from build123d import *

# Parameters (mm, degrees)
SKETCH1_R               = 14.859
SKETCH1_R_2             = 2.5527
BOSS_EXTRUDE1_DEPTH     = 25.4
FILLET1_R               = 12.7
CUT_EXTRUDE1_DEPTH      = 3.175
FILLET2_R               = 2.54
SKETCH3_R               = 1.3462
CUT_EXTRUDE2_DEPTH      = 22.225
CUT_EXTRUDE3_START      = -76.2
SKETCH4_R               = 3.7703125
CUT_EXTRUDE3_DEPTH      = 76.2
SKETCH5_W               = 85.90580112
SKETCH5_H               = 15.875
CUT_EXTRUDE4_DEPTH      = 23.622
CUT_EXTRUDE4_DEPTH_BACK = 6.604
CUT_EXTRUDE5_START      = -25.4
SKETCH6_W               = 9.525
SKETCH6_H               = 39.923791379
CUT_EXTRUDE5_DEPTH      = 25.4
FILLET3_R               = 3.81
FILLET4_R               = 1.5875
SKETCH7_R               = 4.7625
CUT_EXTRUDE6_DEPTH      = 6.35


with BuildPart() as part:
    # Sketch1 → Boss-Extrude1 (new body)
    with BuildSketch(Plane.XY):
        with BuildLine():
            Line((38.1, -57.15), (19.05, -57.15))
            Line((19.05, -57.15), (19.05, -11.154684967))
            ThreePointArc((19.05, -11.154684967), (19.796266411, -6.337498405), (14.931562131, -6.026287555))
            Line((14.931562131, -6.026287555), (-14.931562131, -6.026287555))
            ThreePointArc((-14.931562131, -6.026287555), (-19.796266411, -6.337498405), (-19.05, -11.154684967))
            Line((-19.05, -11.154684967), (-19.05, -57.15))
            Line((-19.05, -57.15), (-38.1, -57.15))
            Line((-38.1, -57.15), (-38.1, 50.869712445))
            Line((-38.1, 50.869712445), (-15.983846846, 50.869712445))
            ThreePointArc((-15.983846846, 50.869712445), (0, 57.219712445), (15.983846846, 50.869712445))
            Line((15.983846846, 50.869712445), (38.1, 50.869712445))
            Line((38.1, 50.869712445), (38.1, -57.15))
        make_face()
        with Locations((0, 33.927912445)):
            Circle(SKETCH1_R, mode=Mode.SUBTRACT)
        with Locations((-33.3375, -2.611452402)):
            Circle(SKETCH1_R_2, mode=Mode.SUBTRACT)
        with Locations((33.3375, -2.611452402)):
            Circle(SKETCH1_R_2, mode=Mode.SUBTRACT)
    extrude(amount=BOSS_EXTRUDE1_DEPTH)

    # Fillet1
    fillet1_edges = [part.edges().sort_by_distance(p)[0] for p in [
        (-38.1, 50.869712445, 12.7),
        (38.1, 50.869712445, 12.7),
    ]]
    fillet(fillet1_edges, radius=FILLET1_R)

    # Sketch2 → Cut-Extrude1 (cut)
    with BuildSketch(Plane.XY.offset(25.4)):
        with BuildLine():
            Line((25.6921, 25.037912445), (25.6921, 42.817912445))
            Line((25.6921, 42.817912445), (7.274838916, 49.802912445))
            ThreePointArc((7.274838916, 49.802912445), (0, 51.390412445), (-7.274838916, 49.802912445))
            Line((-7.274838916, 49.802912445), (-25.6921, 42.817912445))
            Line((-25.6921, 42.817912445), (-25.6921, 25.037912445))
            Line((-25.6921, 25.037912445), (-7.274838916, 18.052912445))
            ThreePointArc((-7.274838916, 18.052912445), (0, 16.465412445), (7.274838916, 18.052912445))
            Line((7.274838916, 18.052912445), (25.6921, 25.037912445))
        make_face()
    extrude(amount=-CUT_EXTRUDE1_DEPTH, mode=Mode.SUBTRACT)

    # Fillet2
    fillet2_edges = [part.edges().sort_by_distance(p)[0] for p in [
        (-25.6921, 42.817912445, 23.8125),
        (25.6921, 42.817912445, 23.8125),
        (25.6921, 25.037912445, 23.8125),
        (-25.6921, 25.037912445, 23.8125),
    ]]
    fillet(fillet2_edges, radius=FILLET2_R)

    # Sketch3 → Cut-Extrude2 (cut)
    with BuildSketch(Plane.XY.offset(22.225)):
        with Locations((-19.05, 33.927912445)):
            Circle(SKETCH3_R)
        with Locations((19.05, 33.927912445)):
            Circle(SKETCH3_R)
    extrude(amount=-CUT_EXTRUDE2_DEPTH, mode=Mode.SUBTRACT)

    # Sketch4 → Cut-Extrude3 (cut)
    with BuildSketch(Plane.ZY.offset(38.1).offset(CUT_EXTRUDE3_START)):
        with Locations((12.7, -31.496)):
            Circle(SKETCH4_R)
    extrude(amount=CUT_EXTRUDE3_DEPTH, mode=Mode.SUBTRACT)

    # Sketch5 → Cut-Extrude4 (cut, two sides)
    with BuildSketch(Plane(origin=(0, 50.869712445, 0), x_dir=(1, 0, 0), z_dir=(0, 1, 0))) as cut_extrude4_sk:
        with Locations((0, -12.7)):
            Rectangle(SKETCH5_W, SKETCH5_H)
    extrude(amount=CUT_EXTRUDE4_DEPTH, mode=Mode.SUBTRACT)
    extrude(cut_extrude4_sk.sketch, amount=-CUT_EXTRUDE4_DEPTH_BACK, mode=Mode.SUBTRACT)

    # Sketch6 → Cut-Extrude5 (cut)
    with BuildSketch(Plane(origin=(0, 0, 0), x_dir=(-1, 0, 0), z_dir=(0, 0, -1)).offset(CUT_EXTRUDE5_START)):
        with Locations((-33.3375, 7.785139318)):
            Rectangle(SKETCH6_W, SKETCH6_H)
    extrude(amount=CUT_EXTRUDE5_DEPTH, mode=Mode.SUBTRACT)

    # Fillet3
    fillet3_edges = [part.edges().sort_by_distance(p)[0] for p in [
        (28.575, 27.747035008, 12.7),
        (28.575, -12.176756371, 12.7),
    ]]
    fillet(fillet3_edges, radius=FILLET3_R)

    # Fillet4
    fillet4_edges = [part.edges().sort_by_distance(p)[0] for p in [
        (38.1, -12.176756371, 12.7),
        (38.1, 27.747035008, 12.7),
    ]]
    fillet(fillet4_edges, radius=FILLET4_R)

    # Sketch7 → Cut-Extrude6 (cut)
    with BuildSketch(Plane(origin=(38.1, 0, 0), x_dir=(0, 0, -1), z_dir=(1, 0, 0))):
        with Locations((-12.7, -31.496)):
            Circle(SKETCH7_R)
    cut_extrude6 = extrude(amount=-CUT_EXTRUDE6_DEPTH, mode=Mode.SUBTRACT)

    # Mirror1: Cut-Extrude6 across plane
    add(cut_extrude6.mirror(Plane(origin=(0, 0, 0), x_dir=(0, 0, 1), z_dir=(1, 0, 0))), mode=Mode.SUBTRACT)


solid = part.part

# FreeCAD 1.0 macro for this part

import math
import FreeCAD as App
import Part
import Sketcher

V = App.Vector
Q = App.Units.Quantity


def edges_at(feature, points):
    """Names of the edges that pass closest to the given points."""
    edges = feature.Shape.Edges
    near = lambda p: min(range(len(edges)), key=lambda i: edges[i].distToShape(Part.Vertex(*p))[0])
    return sorted({f"Edge{near(p) + 1}" for p in points})

doc = App.newDocument("Part")
body = doc.addObject("PartDesign::Body", "Body")

# Sketch on XY plane
sketch1 = body.newObject("Sketcher::SketchObject", "Sketch")
sketch1.AttachmentSupport = (doc.getObject("XY_Plane"), [""])
sketch1.MapMode = "FlatFace"
sketch1.addGeometry(Part.LineSegment(V(19.05, -57.15, 0), V(38.1, -57.15, 0)), False)
sketch1.addGeometry(Part.LineSegment(V(38.1, -57.15, 0), V(38.1, 50.869712, 0)), False)
sketch1.addGeometry(Part.LineSegment(V(38.1, 50.869712, 0), V(15.983847, 50.869712, 0)), False)
sketch1.addGeometry(Part.ArcOfCircle(Part.Circle(V(0, 33.927912, 0), V(0, 0, 1), 23.2918), math.radians(46.666518), math.radians(133.333482)), False)
sketch1.addGeometry(Part.LineSegment(V(-15.983847, 50.869712, 0), V(-38.1, 50.869712, 0)), False)
sketch1.addGeometry(Part.LineSegment(V(-38.1, 50.869712, 0), V(-38.1, -57.15, 0)), False)
sketch1.addGeometry(Part.LineSegment(V(-38.1, -57.15, 0), V(-19.05, -57.15, 0)), False)
sketch1.addGeometry(Part.LineSegment(V(-19.05, -57.15, 0), V(-19.05, -11.154685, 0)), False)
sketch1.addGeometry(Part.ArcOfCircle(Part.Circle(V(-17.221692, -8.40505, 0), V(0, 0, 1), 3.302), math.radians(46.087554), math.radians(236.37897)), False)
sketch1.addGeometry(Part.LineSegment(V(-14.931562, -6.026288, 0), V(14.931562, -6.026288, 0)), False)
sketch1.addGeometry(Part.ArcOfCircle(Part.Circle(V(17.221692, -8.40505, 0), V(0, 0, 1), 3.302), math.radians(-56.37897), math.radians(133.912446)), False)
sketch1.addGeometry(Part.LineSegment(V(19.05, -11.154685, 0), V(19.05, -57.15, 0)), False)
sketch1.addGeometry(Part.Circle(V(33.3375, -2.611452, 0), V(0, 0, 1), 2.5527), False)
sketch1.addGeometry(Part.Circle(V(-33.3375, -2.611452, 0), V(0, 0, 1), 2.5527), False)
sketch1.addGeometry(Part.Circle(V(0, 33.927912, 0), V(0, 0, 1), 14.859), False)
sketch1.addConstraint(Sketcher.Constraint("Coincident", 0, 2, 1, 1))
sketch1.addConstraint(Sketcher.Constraint("Coincident", 1, 2, 2, 1))
sketch1.addConstraint(Sketcher.Constraint("Coincident", 2, 2, 3, 1))
sketch1.addConstraint(Sketcher.Constraint("Coincident", 3, 2, 4, 1))
sketch1.addConstraint(Sketcher.Constraint("Coincident", 4, 2, 5, 1))
sketch1.addConstraint(Sketcher.Constraint("Coincident", 5, 2, 6, 1))
sketch1.addConstraint(Sketcher.Constraint("Coincident", 6, 2, 7, 1))
sketch1.addConstraint(Sketcher.Constraint("Coincident", 7, 2, 8, 2))
sketch1.addConstraint(Sketcher.Constraint("Coincident", 8, 1, 9, 1))
sketch1.addConstraint(Sketcher.Constraint("Coincident", 9, 2, 10, 2))
sketch1.addConstraint(Sketcher.Constraint("Coincident", 10, 1, 11, 1))
sketch1.addConstraint(Sketcher.Constraint("Coincident", 11, 2, 0, 1))
sketch1.addConstraint(Sketcher.Constraint("Horizontal", 0))
sketch1.addConstraint(Sketcher.Constraint("Vertical", 1))
sketch1.addConstraint(Sketcher.Constraint("Horizontal", 2))
sketch1.addConstraint(Sketcher.Constraint("Horizontal", 4))
sketch1.addConstraint(Sketcher.Constraint("Vertical", 5))
sketch1.addConstraint(Sketcher.Constraint("Horizontal", 6))
sketch1.addConstraint(Sketcher.Constraint("Vertical", 7))
sketch1.addConstraint(Sketcher.Constraint("Horizontal", 9))
sketch1.addConstraint(Sketcher.Constraint("Vertical", 11))
sketch1.addConstraint(Sketcher.Constraint("Coincident", 14, 3, 3, 3))
sketch1.addConstraint(Sketcher.Constraint("Equal", 8, 10))
sketch1.addConstraint(Sketcher.Constraint("Equal", 12, 13))
sketch1.addConstraint(Sketcher.Constraint("Symmetric", 8, 3, 10, 3, -2))
sketch1.addConstraint(Sketcher.Constraint("Symmetric", 12, 3, 13, 3, -2))
sketch1.addConstraint(Sketcher.Constraint("Symmetric", 2, 2, 3, 2, -2))
sketch1.addConstraint(Sketcher.Constraint("Symmetric", 0, 2, 5, 2, -2))
sketch1.addConstraint(Sketcher.Constraint("Horizontal", 7, 2, 10, 1))
sketch1.addConstraint(Sketcher.Constraint("Diameter", 14, Q("1.17 in")))
sketch1.addConstraint(Sketcher.Constraint("Radius", 8, Q("0.13 in")))
sketch1.addConstraint(Sketcher.Constraint("Diameter", 12, Q("0.201 in")))
sketch1.addConstraint(Sketcher.Constraint("Radius", 3, Q("0.917 in")))
sketch1.addConstraint(Sketcher.Constraint("DistanceX", 5, 2, 0, 2, Q("3 in")))
sketch1.addConstraint(Sketcher.Constraint("DistanceX", 0, 1, 0, 2, Q("0.75 in")))
sketch1.addConstraint(Sketcher.Constraint("DistanceY", 0, 2, -1, 1, Q("2.25 in")))
sketch1.addConstraint(Sketcher.Constraint("DistanceX", -1, 1, 12, 3, Q("1.3125 in")))
sketch1.addConstraint(Sketcher.Constraint("DistanceY", 3, 3, 1, 2, Q("0.667 in")))
sketch1.addConstraint(Sketcher.Constraint("DistanceY", 8, 1, 3, 3, Q("1.573 in")))
sketch1.addConstraint(Sketcher.Constraint("DistanceX", 9, 1, 9, 2, Q("29.863124 mm")))
sketch1.addConstraint(Sketcher.Constraint("DistanceY", 1, 1, 1, 2, Q("108.019712 mm")))
sketch1.addConstraint(Sketcher.Constraint("DistanceY", 7, 1, 7, 2, Q("45.995315 mm")))
sketch1.addConstraint(Sketcher.Constraint("DistanceY", 12, 3, -1, 1, Q("2.611452 mm")))
pad1 = body.newObject("PartDesign::Pad", "Pad")
pad1.Profile = sketch1
pad1.Length = Q("1 in")
doc.recompute()

fillet = body.newObject("PartDesign::Fillet", "Fillet")
fillet.Base = (pad1, edges_at(pad1, [(-38.1, 50.87, 12.7), (38.1, 50.87, 12.7)]))
fillet.Radius = Q("0.5 in")

# Sketch on XY plane
sketch2 = body.newObject("Sketcher::SketchObject", "Sketch001")
sketch2.AttachmentSupport = (doc.getObject("XY_Plane"), [""])
sketch2.MapMode = "FlatFace"
sketch2.AttachmentOffset = App.Placement(V(0, 0, 1 * 25.4), App.Rotation())
sketch2.addGeometry(Part.LineSegment(V(25.6921, 25.037912, 0), V(25.6921, 42.817912, 0)), False)
sketch2.addGeometry(Part.LineSegment(V(25.6921, 42.817912, 0), V(7.274839, 49.802912, 0)), False)
sketch2.addGeometry(Part.ArcOfCircle(Part.Circle(V(0, 33.927912, 0), V(0, 0, 1), 17.4625), math.radians(65.380023), math.radians(114.619977)), False)
sketch2.addGeometry(Part.LineSegment(V(-7.274839, 49.802912, 0), V(-25.6921, 42.817912, 0)), False)
sketch2.addGeometry(Part.LineSegment(V(-25.6921, 42.817912, 0), V(-25.6921, 25.037912, 0)), False)
sketch2.addGeometry(Part.LineSegment(V(-25.6921, 25.037912, 0), V(-7.274839, 18.052912, 0)), False)
sketch2.addGeometry(Part.ArcOfCircle(Part.Circle(V(0, 33.927912, 0), V(0, 0, 1), 17.4625), math.radians(-114.619977), math.radians(-65.380023)), False)
sketch2.addGeometry(Part.LineSegment(V(7.274839, 18.052912, 0), V(25.6921, 25.037912, 0)), False)
sketch2.addConstraint(Sketcher.Constraint("Coincident", 0, 2, 1, 1))
sketch2.addConstraint(Sketcher.Constraint("Coincident", 1, 2, 2, 1))
sketch2.addConstraint(Sketcher.Constraint("Coincident", 2, 2, 3, 1))
sketch2.addConstraint(Sketcher.Constraint("Coincident", 3, 2, 4, 1))
sketch2.addConstraint(Sketcher.Constraint("Coincident", 4, 2, 5, 1))
sketch2.addConstraint(Sketcher.Constraint("Coincident", 5, 2, 6, 1))
sketch2.addConstraint(Sketcher.Constraint("Coincident", 6, 2, 7, 1))
sketch2.addConstraint(Sketcher.Constraint("Coincident", 7, 2, 0, 1))
sketch2.addConstraint(Sketcher.Constraint("Vertical", 0))
sketch2.addConstraint(Sketcher.Constraint("Vertical", 4))
sketch2.addConstraint(Sketcher.Constraint("Coincident", 6, 3, 2, 3))
sketch2.addConstraint(Sketcher.Constraint("Equal", 2, 6))
sketch2.addConstraint(Sketcher.Constraint("Symmetric", 1, 2, 2, 2, -2))
sketch2.addConstraint(Sketcher.Constraint("Symmetric", 0, 2, 3, 2, -2))
sketch2.addConstraint(Sketcher.Constraint("Parallel", 1, 5))
sketch2.addConstraint(Sketcher.Constraint("Parallel", 3, 7))
sketch2.addConstraint(Sketcher.Constraint("Horizontal", 5, 2, 6, 2))
sketch2.addConstraint(Sketcher.Constraint("Vertical", 2, 2, 5, 2))
sketch2.addConstraint(Sketcher.Constraint("DistanceY", 0, 1, 0, 2, Q("0.7 in")))
sketch2.addConstraint(Sketcher.Constraint("Radius", 2, Q("0.6875 in")))
sketch2.addConstraint(Sketcher.Constraint("DistanceY", 5, 2, 2, 2, Q("1.25 in")))
sketch2.addConstraint(Sketcher.Constraint("DistanceX", 3, 2, 0, 2, Q("2.023 in")))
sketch2.addConstraint(Sketcher.Constraint("DistanceY", -1, 1, 2, 3, Q("33.927912 mm")))
pocket1 = body.newObject("PartDesign::Pocket", "Pocket")
pocket1.Profile = sketch2
pocket1.Length = Q("0.125 in")
doc.recompute()

fillet2 = body.newObject("PartDesign::Fillet", "Fillet001")
fillet2.Base = (pocket1, edges_at(pocket1, [
    (-25.692, 42.818, 23.812),
    (25.692, 42.818, 23.812),
    (25.692, 25.038, 23.812),
    (-25.692, 25.038, 23.812),
]))
fillet2.Radius = Q("0.1 in")

# Sketch on XY plane
sketch3 = body.newObject("Sketcher::SketchObject", "Sketch002")
sketch3.AttachmentSupport = (doc.getObject("XY_Plane"), [""])
sketch3.MapMode = "FlatFace"
sketch3.AttachmentOffset = App.Placement(V(0, 0, 0.875 * 25.4), App.Rotation())
sketch3.addGeometry(Part.Circle(V(-19.05, 33.927912, 0), V(0, 0, 1), 1.3462), False)
sketch3.addGeometry(Part.Circle(V(19.05, 33.927912, 0), V(0, 0, 1), 1.3462), False)
sketch3.addConstraint(Sketcher.Constraint("Equal", 0, 1))
sketch3.addConstraint(Sketcher.Constraint("Symmetric", 0, 3, 1, 3, -2))
sketch3.addConstraint(Sketcher.Constraint("Diameter", 0, Q("0.106 in")))
sketch3.addConstraint(Sketcher.Constraint("DistanceX", 0, 3, 1, 3, Q("1.5 in")))
sketch3.addConstraint(Sketcher.Constraint("DistanceY", -1, 1, 0, 3, Q("33.927912 mm")))
pocket2 = body.newObject("PartDesign::Pocket", "Pocket001")
pocket2.Profile = sketch3
pocket2.Length = Q("0.875 in")

# Sketch on YZ plane
sketch4 = body.newObject("Sketcher::SketchObject", "Sketch003")
sketch4.AttachmentSupport = (doc.getObject("YZ_Plane"), [""])
sketch4.MapMode = "FlatFace"
sketch4.AttachmentOffset = App.Placement(V(0, 0, 1.5 * 25.4), App.Rotation())
sketch4.addGeometry(Part.Circle(V(-31.496, 12.7, 0), V(0, 0, 1), 3.770313), False)
sketch4.addConstraint(Sketcher.Constraint("Diameter", 0, Q("0.296875 in")))
sketch4.addConstraint(Sketcher.Constraint("DistanceY", -1, 1, 0, 3, Q("0.5 in")))
sketch4.addConstraint(Sketcher.Constraint("DistanceX", 0, 3, -1, 1, Q("1.24 in")))
pocket3 = body.newObject("PartDesign::Pocket", "Pocket002")
pocket3.Profile = sketch4
pocket3.Length = Q("3 in")

# Sketch on XZ plane
sketch5 = body.newObject("Sketcher::SketchObject", "Sketch004")
sketch5.AttachmentSupport = (doc.getObject("XZ_Plane"), [""])
sketch5.MapMode = "FlatFace"
sketch5.AttachmentOffset = App.Placement(V(0, 0, -50.869712), App.Rotation())
sketch5.addGeometry(Part.LineSegment(V(-42.952901, 4.7625, 0), V(-42.952901, 20.6375, 0)), False)
sketch5.addGeometry(Part.LineSegment(V(-42.952901, 20.6375, 0), V(42.952901, 20.6375, 0)), False)
sketch5.addGeometry(Part.LineSegment(V(42.952901, 20.6375, 0), V(42.952901, 4.7625, 0)), False)
sketch5.addGeometry(Part.LineSegment(V(42.952901, 4.7625, 0), V(-42.952901, 4.7625, 0)), False)
sketch5.addConstraint(Sketcher.Constraint("Coincident", 0, 2, 1, 1))
sketch5.addConstraint(Sketcher.Constraint("Coincident", 1, 2, 2, 1))
sketch5.addConstraint(Sketcher.Constraint("Coincident", 2, 2, 3, 1))
sketch5.addConstraint(Sketcher.Constraint("Coincident", 3, 2, 0, 1))
sketch5.addConstraint(Sketcher.Constraint("Vertical", 0))
sketch5.addConstraint(Sketcher.Constraint("Horizontal", 1))
sketch5.addConstraint(Sketcher.Constraint("Vertical", 2))
sketch5.addConstraint(Sketcher.Constraint("Horizontal", 3))
sketch5.addConstraint(Sketcher.Constraint("DistanceY", 0, 1, 0, 2, Q("0.625 in")))
sketch5.addConstraint(Sketcher.Constraint("DistanceY", -1, 1, 0, 2, Q("0.8125 in")))
sketch5.addConstraint(Sketcher.Constraint("DistanceX", 1, 1, 1, 2, Q("85.905801 mm")))
sketch5.addConstraint(Sketcher.Constraint("DistanceX", 0, 2, -1, 1, Q("42.952901 mm")))
pocket4 = body.newObject("PartDesign::Pocket", "Pocket003")
pocket4.Profile = sketch5
pocket4.Type = "TwoLengths"
pocket4.Length = Q("0.93 in")
pocket4.Length2 = Q("0.26 in")

# Sketch on XY plane
sketch6 = body.newObject("Sketcher::SketchObject", "Sketch005")
sketch6.AttachmentSupport = (doc.getObject("XY_Plane"), [""])
sketch6.MapMode = "FlatFace"
sketch6.AttachmentOffset = App.Placement(V(0, 0, 1 * 25.4), App.Rotation())
sketch6.addGeometry(Part.LineSegment(V(38.1, 27.747035, 0), V(38.1, -12.176756, 0)), False)
sketch6.addGeometry(Part.LineSegment(V(38.1, -12.176756, 0), V(28.575, -12.176756, 0)), False)
sketch6.addGeometry(Part.LineSegment(V(28.575, -12.176756, 0), V(28.575, 27.747035, 0)), False)
sketch6.addGeometry(Part.LineSegment(V(28.575, 27.747035, 0), V(38.1, 27.747035, 0)), False)
sketch6.addConstraint(Sketcher.Constraint("Coincident", 0, 2, 1, 1))
sketch6.addConstraint(Sketcher.Constraint("Coincident", 1, 2, 2, 1))
sketch6.addConstraint(Sketcher.Constraint("Coincident", 2, 2, 3, 1))
sketch6.addConstraint(Sketcher.Constraint("Coincident", 3, 2, 0, 1))
sketch6.addConstraint(Sketcher.Constraint("Vertical", 0))
sketch6.addConstraint(Sketcher.Constraint("Horizontal", 1))
sketch6.addConstraint(Sketcher.Constraint("Vertical", 2))
sketch6.addConstraint(Sketcher.Constraint("Horizontal", 3))
sketch6.addConstraint(Sketcher.Constraint("DistanceX", -1, 1, 0, 2, Q("1.5 in")))
sketch6.addConstraint(Sketcher.Constraint("DistanceX", 1, 2, 1, 1, Q("0.375 in")))
sketch6.addConstraint(Sketcher.Constraint("DistanceY", 0, 2, -1, 1, Q("0.4793999 in")))
sketch6.addConstraint(Sketcher.Constraint("DistanceY", 0, 2, 0, 1, Q("39.923791 mm")))
pocket5 = body.newObject("PartDesign::Pocket", "Pocket004")
pocket5.Profile = sketch6
pocket5.Length = Q("1 in")
doc.recompute()

fillet3 = body.newObject("PartDesign::Fillet", "Fillet002")
fillet3.Base = (pocket5, edges_at(pocket5, [(28.575, 27.747, 12.7), (28.575, -12.177, 12.7)]))
fillet3.Radius = Q("0.15 in")
doc.recompute()

fillet4 = body.newObject("PartDesign::Fillet", "Fillet003")
fillet4.Base = (fillet3, edges_at(fillet3, [(38.1, -12.177, 12.7), (38.1, 27.747, 12.7)]))
fillet4.Radius = Q("0.0625 in")

# Sketch on YZ plane
sketch7 = body.newObject("Sketcher::SketchObject", "Sketch006")
sketch7.AttachmentSupport = (doc.getObject("YZ_Plane"), [""])
sketch7.MapMode = "FlatFace"
sketch7.AttachmentOffset = App.Placement(V(0, 0, 1.5 * 25.4), App.Rotation())
sketch7.addGeometry(Part.Circle(V(-31.496, 12.7, 0), V(0, 0, 1), 4.7625), False)
sketch7.addConstraint(Sketcher.Constraint("Diameter", 0, Q("0.375 in")))
sketch7.addConstraint(Sketcher.Constraint("DistanceY", -1, 1, 0, 3, Q("0.5 in")))
sketch7.addConstraint(Sketcher.Constraint("DistanceX", 0, 3, -1, 1, Q("1.24 in")))
pocket6 = body.newObject("PartDesign::Pocket", "Pocket005")
pocket6.Profile = sketch7
pocket6.Length = Q("0.25 in")
doc.recompute()

mirrored = body.newObject("PartDesign::Mirrored", "Mirrored")
mirrored.Originals = [pocket6]
mirrored.MirrorPlane = (doc.getObject("YZ_Plane"), [""])
body.Tip = mirrored

doc.recompute()
